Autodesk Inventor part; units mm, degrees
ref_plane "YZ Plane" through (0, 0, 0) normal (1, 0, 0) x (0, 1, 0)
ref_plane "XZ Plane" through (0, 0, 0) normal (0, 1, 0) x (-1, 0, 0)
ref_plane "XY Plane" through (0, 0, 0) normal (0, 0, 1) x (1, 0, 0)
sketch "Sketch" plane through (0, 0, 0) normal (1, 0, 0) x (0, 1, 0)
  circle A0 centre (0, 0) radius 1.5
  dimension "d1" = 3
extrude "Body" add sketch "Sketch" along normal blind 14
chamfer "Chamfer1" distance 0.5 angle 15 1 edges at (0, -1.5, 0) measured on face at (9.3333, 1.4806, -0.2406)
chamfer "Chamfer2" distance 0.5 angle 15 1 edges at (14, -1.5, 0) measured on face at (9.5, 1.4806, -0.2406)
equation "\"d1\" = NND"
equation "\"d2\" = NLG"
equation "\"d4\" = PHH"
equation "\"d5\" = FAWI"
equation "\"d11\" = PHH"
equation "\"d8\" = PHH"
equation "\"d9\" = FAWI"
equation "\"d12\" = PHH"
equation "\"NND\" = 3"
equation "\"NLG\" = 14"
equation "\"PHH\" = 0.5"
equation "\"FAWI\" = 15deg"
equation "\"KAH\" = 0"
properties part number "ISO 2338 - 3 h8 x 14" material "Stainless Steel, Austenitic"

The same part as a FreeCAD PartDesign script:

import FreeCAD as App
import Part
import Sketcher
from FreeCAD import Vector
Q = App.Units.Quantity


def edges_at(feature, points):
    """Names of the edges that pass closest to the given points."""
    edges = feature.Shape.Edges
    near = lambda p: min(range(len(edges)), key=lambda i: edges[i].distToShape(Part.Vertex(*p))[0])
    return sorted({f"Edge{near(p) + 1}" for p in points})

doc = App.newDocument("Part")
body = doc.addObject("PartDesign::Body", "Body")

# Sketch on YZ plane
sketch1 = body.newObject("Sketcher::SketchObject", "Sketch")
sketch1.AttachmentSupport = (doc.getObject("YZ_Plane"), [""])
sketch1.MapMode = "FlatFace"
sketch1.addGeometry(Part.Circle(Vector(0, 0, 0), Vector(0, 0, 1), 1.5), False)
sketch1.addConstraint([
    Sketcher.Constraint("Coincident", 0, 3, -1, 1),
    Sketcher.Constraint("Diameter", 0, Q("3 mm")),
])
pad1 = body.newObject("PartDesign::Pad", "Pad")
pad1.Profile = sketch1
pad1.Length = 14
doc.recompute()

chamfer = body.newObject("PartDesign::Chamfer", "Chamfer")
chamfer.Base = (pad1, edges_at(pad1, [(0, -1.5, 0)]))
chamfer.ChamferType = "Distance and Angle"
chamfer.Size = 0.5
chamfer.Angle = 15
doc.recompute()

chamfer2 = body.newObject("PartDesign::Chamfer", "Chamfer001")
chamfer2.Base = (chamfer, edges_at(chamfer, [(14, -1.5, 0)]))
chamfer2.ChamferType = "Distance and Angle"
chamfer2.Size = 0.5
chamfer2.Angle = 15

doc.recompute()
